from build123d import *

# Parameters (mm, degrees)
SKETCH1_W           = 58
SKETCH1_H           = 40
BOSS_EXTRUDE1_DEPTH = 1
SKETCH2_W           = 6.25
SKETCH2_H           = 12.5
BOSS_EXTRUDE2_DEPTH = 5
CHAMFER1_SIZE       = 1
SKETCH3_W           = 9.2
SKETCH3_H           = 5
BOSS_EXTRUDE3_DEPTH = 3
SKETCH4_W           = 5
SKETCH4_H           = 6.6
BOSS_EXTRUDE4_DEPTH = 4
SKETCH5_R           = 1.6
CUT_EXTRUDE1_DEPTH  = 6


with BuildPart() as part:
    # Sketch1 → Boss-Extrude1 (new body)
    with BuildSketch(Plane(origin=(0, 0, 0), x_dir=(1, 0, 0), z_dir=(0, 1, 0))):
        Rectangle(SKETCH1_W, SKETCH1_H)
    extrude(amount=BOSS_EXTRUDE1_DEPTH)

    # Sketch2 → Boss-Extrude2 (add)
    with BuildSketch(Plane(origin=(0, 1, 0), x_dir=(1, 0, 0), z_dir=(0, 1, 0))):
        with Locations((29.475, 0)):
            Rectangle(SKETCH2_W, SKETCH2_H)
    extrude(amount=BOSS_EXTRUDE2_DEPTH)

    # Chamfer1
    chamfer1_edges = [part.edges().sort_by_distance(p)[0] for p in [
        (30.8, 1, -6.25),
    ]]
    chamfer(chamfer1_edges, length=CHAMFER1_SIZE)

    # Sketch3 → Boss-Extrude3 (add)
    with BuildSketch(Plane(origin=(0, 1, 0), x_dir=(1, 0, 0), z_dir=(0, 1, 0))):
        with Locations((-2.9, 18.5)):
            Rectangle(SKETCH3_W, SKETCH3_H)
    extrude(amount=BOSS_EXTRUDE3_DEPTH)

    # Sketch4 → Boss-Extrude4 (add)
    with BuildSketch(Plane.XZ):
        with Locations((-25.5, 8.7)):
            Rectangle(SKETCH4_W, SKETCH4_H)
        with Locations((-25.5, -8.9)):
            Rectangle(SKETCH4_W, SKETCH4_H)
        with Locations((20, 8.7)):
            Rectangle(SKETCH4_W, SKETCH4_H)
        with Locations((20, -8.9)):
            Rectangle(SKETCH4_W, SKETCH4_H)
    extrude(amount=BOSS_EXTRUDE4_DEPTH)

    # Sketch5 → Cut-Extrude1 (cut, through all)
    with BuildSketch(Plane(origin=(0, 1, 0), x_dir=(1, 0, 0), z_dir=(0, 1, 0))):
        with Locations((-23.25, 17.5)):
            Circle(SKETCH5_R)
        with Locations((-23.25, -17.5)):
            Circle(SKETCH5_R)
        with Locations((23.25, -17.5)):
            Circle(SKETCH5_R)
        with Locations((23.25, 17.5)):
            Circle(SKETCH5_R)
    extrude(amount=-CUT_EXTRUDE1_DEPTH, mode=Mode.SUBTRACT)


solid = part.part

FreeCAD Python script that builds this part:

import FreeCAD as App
import Part
import Sketcher


def edges_at(feature, points):
    """Names of the edges that pass closest to the given points."""
    edges = feature.Shape.Edges
    near = lambda p: min(range(len(edges)), key=lambda i: edges[i].distToShape(Part.Vertex(*p))[0])
    return sorted({f"Edge{near(p) + 1}" for p in points})


def add_polygon(sketch, points):
    """Adds a closed chain of lines whose ends are joined by coincident constraints."""
    first, n = sketch.GeometryCount, len(points)
    for a, b in zip(points, points[1:] + points[:1]):
        sketch.addGeometry(Part.LineSegment(App.Vector(*a, 0), App.Vector(*b, 0)), False)
    for i in range(n):
        sketch.addConstraint(Sketcher.Constraint("Coincident", first + i, 2, first + (i + 1) % n, 1))

doc = App.newDocument("Part")
body = doc.addObject("PartDesign::Body", "Body")

# Sketch on XZ plane
sketch1 = body.newObject("Sketcher::SketchObject", "Sketch")
sketch1.AttachmentSupport = (doc.getObject("XZ_Plane"), [""])
sketch1.MapMode = "FlatFace"
add_polygon(sketch1, [(-29, -20), (-29, 20), (29, 20), (29, -20)])  # lines 0-3
sketch1.addConstraint([
    Sketcher.Constraint("Vertical", 0),
    Sketcher.Constraint("Horizontal", 1),
    Sketcher.Constraint("Vertical", 2),
    Sketcher.Constraint("Horizontal", 3),
    Sketcher.Constraint("Symmetric", 0, 2, 2, 2, -1, 1),
    Sketcher.Constraint("DistanceX", 1, 1, 1, 2, 58.0),
    Sketcher.Constraint("DistanceY", 0, 1, 0, 2, 40.0),
])
pad1 = body.newObject("PartDesign::Pad", "Pad")
pad1.Profile = sketch1
pad1.Length = 1
pad1.Reversed = True

# Sketch on XZ plane
sketch2 = body.newObject("Sketcher::SketchObject", "Sketch001")
sketch2.AttachmentSupport = (doc.getObject("XZ_Plane"), [""])
sketch2.MapMode = "FlatFace"
sketch2.AttachmentOffset = App.Placement(App.Vector(0, 0, -1), App.Rotation())
add_polygon(sketch2, [(26, -6), (26, 6), (33, 6), (33, -6)])  # lines 0-3
sketch2.addConstraint([
    Sketcher.Constraint("Vertical", 0),
    Sketcher.Constraint("Horizontal", 1),
    Sketcher.Constraint("Vertical", 2),
    Sketcher.Constraint("Horizontal", 3),
    Sketcher.Constraint("DistanceY", 0, 1, 0, 2, 12.5),
    Sketcher.Constraint("DistanceX", 1, 1, 1, 2, 6.25),
    Sketcher.Constraint("DistanceX", -1, 1, 1, 2, 32.6),
    Sketcher.Constraint("DistanceY", -1, 1, 0, 2, 6.25),
])
pad2 = body.newObject("PartDesign::Pad", "Pad001")
pad2.Profile = sketch2
pad2.Length = 5
pad2.Reversed = True
doc.recompute()

chamfer = body.newObject("PartDesign::Chamfer", "Chamfer")
chamfer.Base = (pad2, edges_at(pad2, [(30.8, 1, -6.25)]))
chamfer.Size = 1

# Sketch on XZ plane
sketch3 = body.newObject("Sketcher::SketchObject", "Sketch002")
sketch3.AttachmentSupport = (doc.getObject("XZ_Plane"), [""])
sketch3.MapMode = "FlatFace"
sketch3.AttachmentOffset = App.Placement(App.Vector(0, 0, -1), App.Rotation())
add_polygon(sketch3, [(-8, -21), (-8, -16), (2, -16), (2, -21)])  # lines 0-3
sketch3.addConstraint([
    Sketcher.Constraint("Vertical", 0),
    Sketcher.Constraint("Horizontal", 1),
    Sketcher.Constraint("Vertical", 2),
    Sketcher.Constraint("Horizontal", 3),
    Sketcher.Constraint("DistanceY", 0, 1, 0, 2, 5.0),
    Sketcher.Constraint("DistanceX", 1, 1, 1, 2, 9.2),
    Sketcher.Constraint("DistanceY", 0, 2, -1, 1, 16.0),
    Sketcher.Constraint("DistanceX", 0, 2, -1, 1, 7.5),
])
pad3 = body.newObject("PartDesign::Pad", "Pad002")
pad3.Profile = sketch3
pad3.Length = 3
pad3.Reversed = True

# Sketch on XZ plane
sketch4 = body.newObject("Sketcher::SketchObject", "Sketch003")
sketch4.AttachmentSupport = (doc.getObject("XZ_Plane"), [""])
sketch4.MapMode = "FlatFace"
add_polygon(sketch4, [(-28, 12), (-28, 5), (-23, 5), (-23, 12)])  # lines 0-3
add_polygon(sketch4, [(-28, -6), (-28, -12), (-23, -12), (-23, -6)])  # lines 4-7
add_polygon(sketch4, [(18, 12), (18, 5), (22, 5), (22, 12)])  # lines 8-11
add_polygon(sketch4, [(18, -6), (18, -12), (22, -12), (22, -6)])  # lines 12-15
sketch4.addConstraint([
    Sketcher.Constraint("Vertical", 0),
    Sketcher.Constraint("Horizontal", 1),
    Sketcher.Constraint("Vertical", 2),
    Sketcher.Constraint("Horizontal", 3),
    Sketcher.Constraint("Vertical", 4),
    Sketcher.Constraint("Horizontal", 5),
    Sketcher.Constraint("Vertical", 6),
    Sketcher.Constraint("Horizontal", 7),
    Sketcher.Constraint("Vertical", 8),
    Sketcher.Constraint("Horizontal", 9),
    Sketcher.Constraint("Vertical", 10),
    Sketcher.Constraint("Horizontal", 11),
    Sketcher.Constraint("Vertical", 12),
    Sketcher.Constraint("Horizontal", 13),
    Sketcher.Constraint("Vertical", 14),
    Sketcher.Constraint("Horizontal", 15),
    Sketcher.Constraint("Horizontal", 1, 2, 8, 2),
    Sketcher.Constraint("Horizontal", 3, 2, 10, 2),
    Sketcher.Constraint("Horizontal", 5, 2, 12, 2),
    Sketcher.Constraint("Horizontal", 7, 2, 14, 2),
    Sketcher.Constraint("Vertical", 3, 2, 4, 2),
    Sketcher.Constraint("Vertical", 2, 2, 5, 2),
    Sketcher.Constraint("Vertical", 11, 2, 12, 2),
    Sketcher.Constraint("Vertical", 10, 2, 13, 2),
    Sketcher.Constraint("Equal", 7, 9),
    Sketcher.Constraint("Equal", 2, 4),
    Sketcher.Constraint("DistanceX", 1, 1, 1, 2, 5.0),
    Sketcher.Constraint("DistanceY", 0, 2, 0, 1, 6.6),
    Sketcher.Constraint("DistanceX", 0, 2, -1, 1, 28.0),
    Sketcher.Constraint("DistanceY", -1, 1, 2, 2, 12.0),
    Sketcher.Constraint("DistanceY", 6, 2, 1, 2, 11.0),
    Sketcher.Constraint("DistanceX", -1, 1, 8, 2, 17.5),
])
pad4 = body.newObject("PartDesign::Pad", "Pad003")
pad4.Profile = sketch4
pad4.Length = 4

# Sketch on XZ plane
sketch5 = body.newObject("Sketcher::SketchObject", "Sketch004")
sketch5.AttachmentSupport = (doc.getObject("XZ_Plane"), [""])
sketch5.MapMode = "FlatFace"
sketch5.AttachmentOffset = App.Placement(App.Vector(0, 0, -1), App.Rotation())
sketch5.addGeometry([
    Part.Circle(App.Vector(-23.2, -17.5, 0), App.Vector(0, 0, 1), 1.6),
    Part.Circle(App.Vector(-23.2, 17.5, 0), App.Vector(0, 0, 1), 1.6),
    Part.Circle(App.Vector(23.2, 17.5, 0), App.Vector(0, 0, 1), 1.6),
    Part.Circle(App.Vector(23.2, -17.5, 0), App.Vector(0, 0, 1), 1.6),
], False)
sketch5.addConstraint([
    Sketcher.Constraint("Equal", 0, 1),
    Sketcher.Constraint("Equal", 1, 2),
    Sketcher.Constraint("Equal", 2, 3),
    Sketcher.Constraint("Symmetric", 0, 3, 2, 3, -1, 1),
    Sketcher.Constraint("Symmetric", 1, 3, 3, 3, -1, 1),
    Sketcher.Constraint("Symmetric", 1, 3, 2, 3, -2),
    Sketcher.Constraint("Diameter", 0, 3.2),
    Sketcher.Constraint("DistanceY", 0, 3, 1, 3, 35.0),
    Sketcher.Constraint("DistanceX", 1, 3, 2, 3, 46.5),
])
pocket1 = body.newObject("PartDesign::Pocket", "Pocket")
pocket1.Profile = sketch5
pocket1.Type = "ThroughAll"
pocket1.Reversed = True

doc.recompute()
